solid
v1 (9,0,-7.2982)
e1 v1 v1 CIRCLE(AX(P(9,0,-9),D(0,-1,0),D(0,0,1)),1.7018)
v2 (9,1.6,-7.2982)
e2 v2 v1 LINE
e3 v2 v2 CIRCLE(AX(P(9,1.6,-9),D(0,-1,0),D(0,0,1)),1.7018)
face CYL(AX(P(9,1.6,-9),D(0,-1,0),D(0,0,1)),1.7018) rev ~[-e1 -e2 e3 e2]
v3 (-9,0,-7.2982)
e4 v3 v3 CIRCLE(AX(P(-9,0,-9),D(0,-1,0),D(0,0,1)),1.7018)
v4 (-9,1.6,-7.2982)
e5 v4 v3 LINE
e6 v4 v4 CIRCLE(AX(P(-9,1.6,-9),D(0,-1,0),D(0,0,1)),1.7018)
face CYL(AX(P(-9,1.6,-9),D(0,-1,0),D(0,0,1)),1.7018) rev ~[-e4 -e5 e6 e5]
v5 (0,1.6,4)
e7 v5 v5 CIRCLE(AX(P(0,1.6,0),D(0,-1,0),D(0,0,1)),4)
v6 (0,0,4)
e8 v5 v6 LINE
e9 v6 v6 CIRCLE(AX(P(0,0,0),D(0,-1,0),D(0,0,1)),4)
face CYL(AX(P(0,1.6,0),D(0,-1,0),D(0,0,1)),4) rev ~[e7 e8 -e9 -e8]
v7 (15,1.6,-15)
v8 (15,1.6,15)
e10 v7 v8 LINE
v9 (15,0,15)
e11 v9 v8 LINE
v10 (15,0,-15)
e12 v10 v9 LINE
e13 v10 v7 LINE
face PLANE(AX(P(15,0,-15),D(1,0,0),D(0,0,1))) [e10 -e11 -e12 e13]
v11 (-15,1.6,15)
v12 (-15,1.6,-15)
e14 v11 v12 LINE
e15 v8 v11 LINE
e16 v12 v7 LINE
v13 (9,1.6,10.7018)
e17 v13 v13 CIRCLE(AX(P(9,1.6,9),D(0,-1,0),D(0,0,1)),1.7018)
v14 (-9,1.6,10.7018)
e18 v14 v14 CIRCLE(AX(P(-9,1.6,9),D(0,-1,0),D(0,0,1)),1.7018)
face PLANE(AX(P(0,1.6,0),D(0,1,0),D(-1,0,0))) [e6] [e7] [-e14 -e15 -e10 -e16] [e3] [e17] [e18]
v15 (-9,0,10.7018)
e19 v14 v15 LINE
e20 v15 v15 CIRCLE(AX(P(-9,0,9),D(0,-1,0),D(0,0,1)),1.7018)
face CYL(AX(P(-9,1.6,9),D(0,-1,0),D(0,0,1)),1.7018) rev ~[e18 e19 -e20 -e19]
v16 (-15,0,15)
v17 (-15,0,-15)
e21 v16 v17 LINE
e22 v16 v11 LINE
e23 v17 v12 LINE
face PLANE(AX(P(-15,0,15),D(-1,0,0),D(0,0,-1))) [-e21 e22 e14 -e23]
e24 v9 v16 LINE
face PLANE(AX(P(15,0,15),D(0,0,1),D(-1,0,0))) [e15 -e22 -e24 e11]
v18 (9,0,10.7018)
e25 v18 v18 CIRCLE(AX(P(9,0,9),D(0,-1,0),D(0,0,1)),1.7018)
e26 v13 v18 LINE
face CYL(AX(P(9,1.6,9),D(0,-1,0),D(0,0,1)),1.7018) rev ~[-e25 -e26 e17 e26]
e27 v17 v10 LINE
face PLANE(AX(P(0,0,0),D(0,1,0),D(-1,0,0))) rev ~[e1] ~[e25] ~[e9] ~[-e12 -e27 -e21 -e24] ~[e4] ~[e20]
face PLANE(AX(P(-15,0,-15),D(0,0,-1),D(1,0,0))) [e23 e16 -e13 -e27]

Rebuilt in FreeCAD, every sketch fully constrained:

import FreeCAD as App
import Part
import Sketcher
from FreeCAD import Vector
Q = App.Units.Quantity


def add_polygon(sketch, points):
    """Adds a closed chain of lines whose ends are joined by coincident constraints."""
    first, n = sketch.GeometryCount, len(points)
    for a, b in zip(points, points[1:] + points[:1]):
        sketch.addGeometry(Part.LineSegment(App.Vector(*a, 0), App.Vector(*b, 0)), False)
    for i in range(n):
        sketch.addConstraint(Sketcher.Constraint("Coincident", first + i, 2, first + (i + 1) % n, 1))

doc = App.newDocument("Part")
params = doc.addObject("Spreadsheet::Sheet", "Params")
for row, (alias, value) in enumerate([
    ("sketch1_width", "30 mm"),
    ("pad1_length", "1.6 mm"),
    ("sketch2_diameter", "8 mm"),
    ("hole_diameter", "8 mm"),
    ("hole_depth", "4.8 mm"),
    ("hole2_diameter", "3.4036 mm"),
    ("hole2_depth", "1.6 mm"),
], start=1):
    params.set(f"A{row}", alias)
    params.set(f"B{row}", "=" + value)
    params.setAlias(f"B{row}", alias)

body = doc.addObject("PartDesign::Body", "Body")

sketch1 = body.newObject("Sketcher::SketchObject", "Sketch")
sketch1.AttachmentSupport = (doc.getObject("XZ_Plane"), [""])
sketch1.MapMode = "FlatFace"
add_polygon(sketch1, [(15, -15), (-15, -15), (-15, 15), (15, 15)])
sketch1.addConstraint([
    Sketcher.Constraint("Horizontal", 0),
    Sketcher.Constraint("Vertical", 1),
    Sketcher.Constraint("Horizontal", 2),
    Sketcher.Constraint("Vertical", 3),
    Sketcher.Constraint("Symmetric", 0, 2, 2, 2, -1, 1),
    Sketcher.Constraint("Equal", 2, 1),
    Sketcher.Constraint("DistanceX", 0, 2, 0, 1, Q("30 mm")),
])
sketch1.setExpression("Constraints[10]", "Params.sketch1_width")
pad1 = body.newObject("PartDesign::Pad", "Pad")
pad1.Profile = sketch1
pad1.setExpression("Length", "Params.pad1_length")
pad1.Reversed = True

sketch2 = body.newObject("Sketcher::SketchObject", "Sketch001")
sketch2.AttachmentSupport = (doc.getObject("XZ_Plane"), [""])
sketch2.MapMode = "FlatFace"
sketch2.AttachmentOffset = App.Placement(Vector(0, 0, -1.6), App.Rotation())
sketch2.addGeometry(Part.Circle(Vector(0, 0, 0), Vector(0, 0, 1), 4), False)
sketch2.addConstraint([
    Sketcher.Constraint("Coincident", 0, 3, -1, 1),
    Sketcher.Constraint("Diameter", 0, Q("8 mm")),
])
sketch2.setExpression("Constraints[1]", "Params.sketch2_diameter")
doc.recompute()
hole = body.newObject("PartDesign::Hole", "Hole")
hole.Profile = sketch2
hole.ThreadType = "None"
hole.setExpression("Diameter", "Params.hole_diameter")
hole.DepthType = "Dimension"
hole.setExpression("Depth", "Params.hole_depth")
hole.DrillPoint = "Flat"
hole.Reversed = True

sketch3 = body.newObject("Sketcher::SketchObject", "Sketch002")
sketch3.AttachmentSupport = (doc.getObject("XZ_Plane"), [""])
sketch3.MapMode = "FlatFace"
sketch3.AttachmentOffset = App.Placement(Vector(0, 0, -1.6), App.Rotation())
sketch3.addGeometry([
    Part.Circle(Vector(-9, 9, 0), Vector(0, 0, 1), 1.7),
    Part.Circle(Vector(9, 9, 0), Vector(0, 0, 1), 1.7),
    Part.Circle(Vector(9, -9, 0), Vector(0, 0, 1), 1.7),
    Part.Circle(Vector(-9, -9, 0), Vector(0, 0, 1), 1.7),
], False)
sketch3.addConstraint([
    Sketcher.Constraint("Equal", 0, 1),
    Sketcher.Constraint("Equal", 1, 2),
    Sketcher.Constraint("Equal", 2, 3),
    Sketcher.Constraint("Symmetric", 0, 3, 2, 3, -1, 1),
    Sketcher.Constraint("Symmetric", 1, 3, 3, 3, -1, 1),
    Sketcher.Constraint("Symmetric", 0, 3, 1, 3, -2),
    Sketcher.Constraint("DistanceX", 0, 3, -1, 1, Q("9 mm")),
    Sketcher.Constraint("DistanceY", -1, 1, 0, 3, Q("9 mm")),
    Sketcher.Constraint("Diameter", 0, Q("3.4036 mm")),
])
doc.recompute()
hole2 = body.newObject("PartDesign::Hole", "Hole001")
hole2.Profile = sketch3
hole2.ThreadType = "None"
hole2.setExpression("Diameter", "Params.hole2_diameter")
hole2.DepthType = "Dimension"
hole2.setExpression("Depth", "Params.hole2_depth")
hole2.DrillPoint = "Flat"
hole2.Reversed = True

doc.recompute()
